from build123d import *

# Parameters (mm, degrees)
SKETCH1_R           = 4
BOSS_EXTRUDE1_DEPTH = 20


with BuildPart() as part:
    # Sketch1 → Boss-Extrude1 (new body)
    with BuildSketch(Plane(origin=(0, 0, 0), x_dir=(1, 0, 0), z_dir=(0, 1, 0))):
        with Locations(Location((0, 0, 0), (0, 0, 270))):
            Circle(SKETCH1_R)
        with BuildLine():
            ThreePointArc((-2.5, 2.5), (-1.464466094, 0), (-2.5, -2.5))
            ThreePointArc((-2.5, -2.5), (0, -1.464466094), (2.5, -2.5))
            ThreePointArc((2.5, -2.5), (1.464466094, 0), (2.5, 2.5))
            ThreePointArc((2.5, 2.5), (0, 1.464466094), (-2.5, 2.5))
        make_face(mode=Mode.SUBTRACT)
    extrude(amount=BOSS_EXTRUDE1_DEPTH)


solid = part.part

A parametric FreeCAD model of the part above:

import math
import FreeCAD as App
import Part
import Sketcher
from FreeCAD import Vector
Q = App.Units.Quantity

doc = App.newDocument("Part")
body = doc.addObject("PartDesign::Body", "Body")

# Sketch on XZ plane
sketch1 = doc.addObject("Sketcher::SketchObject", "Sketch")
body.addObject(sketch1)
sketch1.AttachmentSupport = (doc.XZ_Plane, [""])
sketch1.MapMode = "FlatFace"
sketch1.addGeometry([
    Part.Circle(Vector(0, 0, 0), Vector(0, 0, 1), 4),  # 0
    Part.ArcOfCircle(Part.Circle(Vector(-5, 0, 0), Vector(0, 0, 1), 3.535534), math.radians(-45), math.radians(45)),  # 1
    Part.ArcOfCircle(Part.Circle(Vector(0, -5, 0), Vector(0, 0, 1), 3.535534), math.radians(45), math.radians(135)),  # 2
    Part.ArcOfCircle(Part.Circle(Vector(5, 0, 0), Vector(0, 0, 1), 3.535534), math.radians(135), math.radians(225)),  # 3
    Part.ArcOfCircle(Part.Circle(Vector(0, 5, 0), Vector(0, 0, 1), 3.535534), math.radians(-135), math.radians(-45)),  # 4
], False)
sketch1.addConstraint([
    Sketcher.Constraint("Tangent", 1, 1, 2, 2),
    Sketcher.Constraint("Tangent", 2, 1, 3, 2),
    Sketcher.Constraint("Tangent", 3, 1, 4, 2),
    Sketcher.Constraint("Tangent", 4, 1, 1, 2),
    Sketcher.Constraint("Coincident", 0, 3, -1, 1),
    Sketcher.Constraint("Equal", 1, 2),
    Sketcher.Constraint("Equal", 2, 3),
    Sketcher.Constraint("Equal", 3, 4),
    Sketcher.Constraint("Symmetric", 1, 3, 3, 3, -1, 1),
    Sketcher.Constraint("PointOnObject", 1, 3, -1),
    Sketcher.Constraint("Diameter", 0, Q("8 mm")),
    Sketcher.Constraint("DistanceX", 1, 3, -1, 1, Q("5 mm")),
    Sketcher.Constraint("DistanceY", 2, 3, -1, 1, Q("5 mm")),
])
pad1 = doc.addObject("PartDesign::Pad", "Pad")
body.addObject(pad1)
pad1.Profile = sketch1
pad1.Length = 20
pad1.Reversed = True

doc.recompute()
